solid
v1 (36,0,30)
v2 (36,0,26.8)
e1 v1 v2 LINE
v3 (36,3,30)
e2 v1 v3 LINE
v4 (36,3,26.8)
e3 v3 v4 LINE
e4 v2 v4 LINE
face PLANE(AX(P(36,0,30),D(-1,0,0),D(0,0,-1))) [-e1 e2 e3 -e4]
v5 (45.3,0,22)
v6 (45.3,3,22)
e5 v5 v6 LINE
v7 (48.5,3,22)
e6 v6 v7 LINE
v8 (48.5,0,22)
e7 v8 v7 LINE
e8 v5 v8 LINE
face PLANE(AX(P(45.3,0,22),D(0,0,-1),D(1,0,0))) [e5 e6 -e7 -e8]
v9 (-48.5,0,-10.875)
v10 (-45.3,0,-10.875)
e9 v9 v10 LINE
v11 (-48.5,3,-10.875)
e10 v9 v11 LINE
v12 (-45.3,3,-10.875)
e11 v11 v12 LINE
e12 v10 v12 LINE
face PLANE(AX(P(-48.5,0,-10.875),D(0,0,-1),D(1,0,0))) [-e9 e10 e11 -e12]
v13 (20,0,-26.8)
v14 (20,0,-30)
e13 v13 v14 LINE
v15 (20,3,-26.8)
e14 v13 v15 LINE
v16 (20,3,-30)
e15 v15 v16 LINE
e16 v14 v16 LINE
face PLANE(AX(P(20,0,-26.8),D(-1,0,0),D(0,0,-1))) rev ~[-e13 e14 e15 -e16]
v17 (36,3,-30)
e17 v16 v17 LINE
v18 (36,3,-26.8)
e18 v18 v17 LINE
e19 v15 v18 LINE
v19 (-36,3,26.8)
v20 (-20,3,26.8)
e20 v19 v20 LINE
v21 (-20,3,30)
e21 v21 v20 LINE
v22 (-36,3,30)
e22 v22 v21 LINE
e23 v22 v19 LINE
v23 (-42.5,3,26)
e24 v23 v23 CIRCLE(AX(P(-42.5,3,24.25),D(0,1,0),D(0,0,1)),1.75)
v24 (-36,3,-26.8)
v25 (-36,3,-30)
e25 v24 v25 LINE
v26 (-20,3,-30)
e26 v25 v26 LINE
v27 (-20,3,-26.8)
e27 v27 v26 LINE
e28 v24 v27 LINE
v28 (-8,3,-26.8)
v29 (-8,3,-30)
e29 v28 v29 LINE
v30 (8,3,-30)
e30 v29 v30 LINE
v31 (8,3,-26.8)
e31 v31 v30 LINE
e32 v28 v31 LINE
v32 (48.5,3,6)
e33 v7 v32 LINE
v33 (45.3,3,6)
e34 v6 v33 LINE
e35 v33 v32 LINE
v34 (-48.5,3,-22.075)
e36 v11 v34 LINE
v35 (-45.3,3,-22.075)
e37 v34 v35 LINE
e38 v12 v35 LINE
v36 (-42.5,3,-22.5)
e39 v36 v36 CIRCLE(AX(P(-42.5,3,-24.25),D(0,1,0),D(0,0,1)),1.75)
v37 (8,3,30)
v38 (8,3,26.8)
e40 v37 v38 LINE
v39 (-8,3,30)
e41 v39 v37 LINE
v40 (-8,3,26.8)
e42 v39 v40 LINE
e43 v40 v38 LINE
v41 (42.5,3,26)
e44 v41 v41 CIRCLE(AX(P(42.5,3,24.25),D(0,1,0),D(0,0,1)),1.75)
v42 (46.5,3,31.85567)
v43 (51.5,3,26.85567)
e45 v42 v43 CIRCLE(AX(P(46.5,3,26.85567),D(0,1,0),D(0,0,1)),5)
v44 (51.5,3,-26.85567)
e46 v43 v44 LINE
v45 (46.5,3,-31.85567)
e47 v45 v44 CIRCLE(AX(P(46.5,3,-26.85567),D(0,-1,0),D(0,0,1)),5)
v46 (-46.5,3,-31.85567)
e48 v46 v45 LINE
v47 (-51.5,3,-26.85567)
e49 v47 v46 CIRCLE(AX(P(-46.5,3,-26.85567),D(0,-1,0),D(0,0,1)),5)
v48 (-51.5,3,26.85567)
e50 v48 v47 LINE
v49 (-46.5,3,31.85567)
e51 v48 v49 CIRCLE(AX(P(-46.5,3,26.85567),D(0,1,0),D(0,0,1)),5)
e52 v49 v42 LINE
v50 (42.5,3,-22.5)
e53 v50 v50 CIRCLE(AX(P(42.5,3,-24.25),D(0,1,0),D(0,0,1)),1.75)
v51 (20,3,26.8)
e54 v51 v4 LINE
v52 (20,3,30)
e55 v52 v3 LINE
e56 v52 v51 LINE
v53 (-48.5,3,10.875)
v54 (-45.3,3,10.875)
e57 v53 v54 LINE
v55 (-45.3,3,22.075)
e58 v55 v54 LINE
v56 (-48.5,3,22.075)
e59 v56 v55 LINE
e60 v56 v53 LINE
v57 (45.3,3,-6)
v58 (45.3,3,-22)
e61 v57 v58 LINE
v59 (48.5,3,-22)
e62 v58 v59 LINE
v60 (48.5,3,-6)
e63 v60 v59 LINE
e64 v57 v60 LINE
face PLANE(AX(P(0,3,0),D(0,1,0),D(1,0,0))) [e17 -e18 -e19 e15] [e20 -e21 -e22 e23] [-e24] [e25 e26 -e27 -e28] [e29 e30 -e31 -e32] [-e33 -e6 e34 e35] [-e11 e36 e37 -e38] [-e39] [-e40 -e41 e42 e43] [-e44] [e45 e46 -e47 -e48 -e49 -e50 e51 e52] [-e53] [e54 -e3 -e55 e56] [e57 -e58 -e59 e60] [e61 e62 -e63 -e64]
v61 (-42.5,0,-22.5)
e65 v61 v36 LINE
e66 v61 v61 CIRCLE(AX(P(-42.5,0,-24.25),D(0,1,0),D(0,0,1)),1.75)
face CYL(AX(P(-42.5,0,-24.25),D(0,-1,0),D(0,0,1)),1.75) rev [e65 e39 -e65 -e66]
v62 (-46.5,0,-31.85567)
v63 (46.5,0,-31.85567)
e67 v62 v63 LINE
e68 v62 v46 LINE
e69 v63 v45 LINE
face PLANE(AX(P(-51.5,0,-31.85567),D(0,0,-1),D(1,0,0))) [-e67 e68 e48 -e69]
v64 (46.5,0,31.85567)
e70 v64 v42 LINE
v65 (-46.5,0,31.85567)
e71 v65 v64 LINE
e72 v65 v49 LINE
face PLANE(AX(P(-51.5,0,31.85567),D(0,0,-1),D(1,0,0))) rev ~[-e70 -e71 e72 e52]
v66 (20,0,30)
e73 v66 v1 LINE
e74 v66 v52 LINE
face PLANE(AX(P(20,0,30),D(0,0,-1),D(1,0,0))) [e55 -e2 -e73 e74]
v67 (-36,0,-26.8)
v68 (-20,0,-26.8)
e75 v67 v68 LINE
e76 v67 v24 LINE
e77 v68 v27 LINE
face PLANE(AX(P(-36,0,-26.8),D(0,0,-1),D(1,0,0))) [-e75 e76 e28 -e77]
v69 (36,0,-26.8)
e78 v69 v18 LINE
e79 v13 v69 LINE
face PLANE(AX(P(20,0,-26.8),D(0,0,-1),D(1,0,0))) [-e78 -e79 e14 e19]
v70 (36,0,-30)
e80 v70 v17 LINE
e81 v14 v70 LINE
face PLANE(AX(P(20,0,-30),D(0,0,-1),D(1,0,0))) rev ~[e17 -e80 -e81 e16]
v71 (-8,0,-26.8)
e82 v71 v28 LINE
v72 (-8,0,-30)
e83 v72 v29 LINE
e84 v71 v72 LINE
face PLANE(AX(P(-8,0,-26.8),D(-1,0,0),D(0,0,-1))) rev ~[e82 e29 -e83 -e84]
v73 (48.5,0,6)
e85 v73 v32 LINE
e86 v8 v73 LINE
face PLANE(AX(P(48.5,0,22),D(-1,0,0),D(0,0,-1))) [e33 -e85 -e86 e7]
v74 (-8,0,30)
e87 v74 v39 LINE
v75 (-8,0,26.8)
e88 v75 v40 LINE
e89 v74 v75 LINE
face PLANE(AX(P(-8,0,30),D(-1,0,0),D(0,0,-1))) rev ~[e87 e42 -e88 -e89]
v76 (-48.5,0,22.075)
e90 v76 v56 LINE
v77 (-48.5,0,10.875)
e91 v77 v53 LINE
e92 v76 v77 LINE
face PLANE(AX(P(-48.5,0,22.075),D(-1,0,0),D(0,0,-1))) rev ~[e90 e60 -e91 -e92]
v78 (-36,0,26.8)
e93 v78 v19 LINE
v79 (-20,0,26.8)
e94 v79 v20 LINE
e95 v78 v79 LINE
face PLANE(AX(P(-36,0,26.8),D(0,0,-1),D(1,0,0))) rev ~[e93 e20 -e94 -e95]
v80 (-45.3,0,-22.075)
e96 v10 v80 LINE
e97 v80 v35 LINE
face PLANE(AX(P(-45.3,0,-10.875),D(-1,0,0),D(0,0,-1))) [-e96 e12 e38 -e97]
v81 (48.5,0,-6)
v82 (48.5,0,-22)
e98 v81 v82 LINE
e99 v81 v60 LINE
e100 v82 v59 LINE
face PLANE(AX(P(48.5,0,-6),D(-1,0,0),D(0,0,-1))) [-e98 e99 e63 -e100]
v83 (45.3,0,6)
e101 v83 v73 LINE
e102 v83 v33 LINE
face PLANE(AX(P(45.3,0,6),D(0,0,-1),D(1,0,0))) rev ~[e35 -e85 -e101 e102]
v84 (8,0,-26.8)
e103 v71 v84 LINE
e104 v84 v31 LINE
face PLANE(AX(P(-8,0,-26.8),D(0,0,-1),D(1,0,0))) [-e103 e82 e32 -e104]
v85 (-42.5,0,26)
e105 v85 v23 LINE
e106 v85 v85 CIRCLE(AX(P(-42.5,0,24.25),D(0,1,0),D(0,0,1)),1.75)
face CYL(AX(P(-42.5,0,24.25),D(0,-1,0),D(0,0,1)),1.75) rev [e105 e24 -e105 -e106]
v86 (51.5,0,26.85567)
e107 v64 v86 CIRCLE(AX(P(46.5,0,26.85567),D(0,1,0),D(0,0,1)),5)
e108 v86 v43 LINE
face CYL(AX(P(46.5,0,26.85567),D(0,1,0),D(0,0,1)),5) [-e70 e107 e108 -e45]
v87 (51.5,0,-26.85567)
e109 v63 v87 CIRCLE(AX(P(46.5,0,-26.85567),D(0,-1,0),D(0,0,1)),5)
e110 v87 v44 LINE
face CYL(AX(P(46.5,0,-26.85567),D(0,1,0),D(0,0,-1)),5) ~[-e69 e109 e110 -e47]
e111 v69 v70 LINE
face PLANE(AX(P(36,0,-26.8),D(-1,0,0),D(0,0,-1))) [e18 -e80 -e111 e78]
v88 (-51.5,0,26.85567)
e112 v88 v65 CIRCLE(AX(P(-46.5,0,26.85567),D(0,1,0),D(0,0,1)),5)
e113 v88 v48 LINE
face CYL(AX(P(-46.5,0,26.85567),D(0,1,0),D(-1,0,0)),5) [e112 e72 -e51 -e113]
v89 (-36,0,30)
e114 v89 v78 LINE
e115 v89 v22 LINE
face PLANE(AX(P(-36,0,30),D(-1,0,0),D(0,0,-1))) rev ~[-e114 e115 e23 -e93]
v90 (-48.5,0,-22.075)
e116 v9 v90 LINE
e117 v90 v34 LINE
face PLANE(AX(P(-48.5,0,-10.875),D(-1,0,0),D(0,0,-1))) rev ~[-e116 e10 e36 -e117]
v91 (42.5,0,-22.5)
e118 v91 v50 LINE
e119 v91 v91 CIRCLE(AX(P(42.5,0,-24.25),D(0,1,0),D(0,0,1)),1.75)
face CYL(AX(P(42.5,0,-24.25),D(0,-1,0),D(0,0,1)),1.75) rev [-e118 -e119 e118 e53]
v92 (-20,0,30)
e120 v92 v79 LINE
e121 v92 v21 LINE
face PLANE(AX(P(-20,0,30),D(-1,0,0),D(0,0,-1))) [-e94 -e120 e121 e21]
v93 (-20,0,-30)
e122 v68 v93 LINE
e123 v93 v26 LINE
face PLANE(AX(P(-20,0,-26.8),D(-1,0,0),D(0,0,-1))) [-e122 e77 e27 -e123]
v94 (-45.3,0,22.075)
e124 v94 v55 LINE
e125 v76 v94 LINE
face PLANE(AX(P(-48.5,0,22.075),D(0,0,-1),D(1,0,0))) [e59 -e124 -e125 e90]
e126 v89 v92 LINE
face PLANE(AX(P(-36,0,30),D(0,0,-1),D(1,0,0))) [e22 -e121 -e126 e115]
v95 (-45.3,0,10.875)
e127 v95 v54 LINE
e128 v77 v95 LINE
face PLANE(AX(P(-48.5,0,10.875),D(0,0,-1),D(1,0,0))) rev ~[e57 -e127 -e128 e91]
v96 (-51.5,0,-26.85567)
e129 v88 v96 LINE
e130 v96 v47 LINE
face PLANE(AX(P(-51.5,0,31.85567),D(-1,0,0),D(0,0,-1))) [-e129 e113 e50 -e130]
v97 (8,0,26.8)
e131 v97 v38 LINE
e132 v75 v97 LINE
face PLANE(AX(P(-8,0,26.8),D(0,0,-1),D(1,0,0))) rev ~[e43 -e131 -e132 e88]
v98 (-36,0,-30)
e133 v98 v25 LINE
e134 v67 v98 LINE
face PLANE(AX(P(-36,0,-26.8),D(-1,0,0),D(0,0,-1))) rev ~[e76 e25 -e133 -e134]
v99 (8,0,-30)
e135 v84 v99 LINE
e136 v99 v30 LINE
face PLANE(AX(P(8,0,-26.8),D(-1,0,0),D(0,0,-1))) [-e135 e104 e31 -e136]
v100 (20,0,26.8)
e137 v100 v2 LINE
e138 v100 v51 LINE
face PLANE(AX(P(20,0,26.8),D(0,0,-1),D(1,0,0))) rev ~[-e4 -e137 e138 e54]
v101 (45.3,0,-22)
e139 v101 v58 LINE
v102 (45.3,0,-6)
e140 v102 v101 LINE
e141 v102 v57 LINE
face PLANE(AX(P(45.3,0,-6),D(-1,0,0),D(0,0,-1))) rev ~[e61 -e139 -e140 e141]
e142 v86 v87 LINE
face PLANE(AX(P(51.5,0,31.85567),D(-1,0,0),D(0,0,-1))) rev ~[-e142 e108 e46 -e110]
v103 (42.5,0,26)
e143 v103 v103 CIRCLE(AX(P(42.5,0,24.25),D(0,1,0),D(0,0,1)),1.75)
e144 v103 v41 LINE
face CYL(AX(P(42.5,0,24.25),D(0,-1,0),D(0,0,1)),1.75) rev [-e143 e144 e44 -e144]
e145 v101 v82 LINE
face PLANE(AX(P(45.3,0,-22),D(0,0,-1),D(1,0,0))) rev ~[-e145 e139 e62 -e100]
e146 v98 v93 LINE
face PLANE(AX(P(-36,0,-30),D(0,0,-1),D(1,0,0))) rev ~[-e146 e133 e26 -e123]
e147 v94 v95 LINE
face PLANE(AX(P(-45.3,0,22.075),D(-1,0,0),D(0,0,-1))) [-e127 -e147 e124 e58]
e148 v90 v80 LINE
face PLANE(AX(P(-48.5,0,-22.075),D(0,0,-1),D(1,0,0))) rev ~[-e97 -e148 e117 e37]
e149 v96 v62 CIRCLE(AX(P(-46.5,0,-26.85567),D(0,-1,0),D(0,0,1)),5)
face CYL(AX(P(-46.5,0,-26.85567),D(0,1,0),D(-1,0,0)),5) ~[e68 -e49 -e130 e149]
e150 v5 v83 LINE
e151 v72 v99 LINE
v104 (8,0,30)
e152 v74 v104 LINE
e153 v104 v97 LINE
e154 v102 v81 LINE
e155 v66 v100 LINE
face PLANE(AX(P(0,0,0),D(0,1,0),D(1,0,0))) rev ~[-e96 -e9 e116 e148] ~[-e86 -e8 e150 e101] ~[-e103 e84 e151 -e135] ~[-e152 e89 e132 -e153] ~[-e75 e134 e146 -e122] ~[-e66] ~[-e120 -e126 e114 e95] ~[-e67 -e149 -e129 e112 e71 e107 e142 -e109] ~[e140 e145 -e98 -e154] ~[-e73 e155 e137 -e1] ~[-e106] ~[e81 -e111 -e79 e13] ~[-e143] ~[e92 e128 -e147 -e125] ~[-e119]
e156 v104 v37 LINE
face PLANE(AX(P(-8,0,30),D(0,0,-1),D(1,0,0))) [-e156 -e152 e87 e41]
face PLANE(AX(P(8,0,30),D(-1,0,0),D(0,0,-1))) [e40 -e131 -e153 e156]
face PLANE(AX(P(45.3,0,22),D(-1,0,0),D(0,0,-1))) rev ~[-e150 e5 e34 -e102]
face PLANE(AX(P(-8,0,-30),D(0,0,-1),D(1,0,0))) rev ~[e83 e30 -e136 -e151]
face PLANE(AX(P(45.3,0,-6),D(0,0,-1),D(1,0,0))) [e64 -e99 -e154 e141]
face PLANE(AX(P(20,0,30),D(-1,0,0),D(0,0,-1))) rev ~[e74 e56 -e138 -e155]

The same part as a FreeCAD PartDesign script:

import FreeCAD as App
import Part
import Sketcher
Q = App.Units.Quantity


def edges_at(feature, points):
    """Names of the edges that pass closest to the given points."""
    edges = feature.Shape.Edges
    near = lambda p: min(range(len(edges)), key=lambda i: edges[i].distToShape(Part.Vertex(*p))[0])
    return sorted({f"Edge{near(p) + 1}" for p in points})


def add_polygon(sketch, points):
    """Adds a closed chain of lines whose ends are joined by coincident constraints."""
    first, n = sketch.GeometryCount, len(points)
    for a, b in zip(points, points[1:] + points[:1]):
        sketch.addGeometry(Part.LineSegment(App.Vector(*a, 0), App.Vector(*b, 0)), False)
    for i in range(n):
        sketch.addConstraint(Sketcher.Constraint("Coincident", first + i, 2, first + (i + 1) % n, 1))

doc = App.newDocument("Part")
body = doc.addObject("PartDesign::Body", "Body")

# Sketch on XZ plane
sketch1 = body.newObject("Sketcher::SketchObject", "Sketch")
sketch1.AttachmentSupport = (doc.getObject("XZ_Plane"), [""])
sketch1.MapMode = "FlatFace"
add_polygon(sketch1, [(-51.5, -31.9), (-51.5, 31.9), (51.5, 31.9), (51.5, -31.9)])  # lines 0-3
sketch1.addGeometry(Part.Circle(App.Vector(-42.5, 24.2, 0), App.Vector(0, 0, 1), 1.8), False)  # 4
add_polygon(sketch1, [(-20, 30), (-36, 30), (-36, 26.8), (-20, 26.8)])  # lines 5-8
add_polygon(sketch1, [(-45.3, 22.1), (-48.5, 22.1), (-48.5, 10.9), (-45.3, 10.9)])  # lines 9-12
add_polygon(sketch1, [(8, 30), (-8, 30), (-8, 26.8), (8, 26.8)])  # lines 13-16
add_polygon(sketch1, [(36, 30), (20, 30), (20, 26.8), (36, 26.8)])  # lines 17-20
sketch1.addGeometry(Part.Circle(App.Vector(42.5, 24.2, 0), App.Vector(0, 0, 1), 1.8), False)  # 21
add_polygon(sketch1, [(48.5, 22), (45.3, 22), (45.3, 6), (48.5, 6)])  # lines 22-25
add_polygon(sketch1, [(-45.3, -10.9), (-48.5, -10.9), (-48.5, -22.1), (-45.3, -22.1)])  # lines 26-29
sketch1.addGeometry(Part.Circle(App.Vector(-42.5, -24.2, 0), App.Vector(0, 0, 1), 1.8), False)  # 30
add_polygon(sketch1, [(-20, -26.8), (-36, -26.8), (-36, -30), (-20, -30)])  # lines 31-34
add_polygon(sketch1, [(48.5, -6), (45.3, -6), (45.3, -22), (48.5, -22)])  # lines 35-38
add_polygon(sketch1, [(8, -26.8), (-8, -26.8), (-8, -30), (8, -30)])  # lines 39-42
add_polygon(sketch1, [(36, -26.8), (20, -26.8), (20, -30), (36, -30)])  # lines 43-46
sketch1.addGeometry(Part.Circle(App.Vector(42.5, -24.2, 0), App.Vector(0, 0, 1), 1.8), False)  # 47
sketch1.addConstraint([
    Sketcher.Constraint("Vertical", 0),
    Sketcher.Constraint("Horizontal", 1),
    Sketcher.Constraint("Vertical", 2),
    Sketcher.Constraint("Horizontal", 3),
    Sketcher.Constraint("Horizontal", 5),
    Sketcher.Constraint("Vertical", 6),
    Sketcher.Constraint("Horizontal", 7),
    Sketcher.Constraint("Vertical", 8),
    Sketcher.Constraint("Horizontal", 9),
    Sketcher.Constraint("Vertical", 10),
    Sketcher.Constraint("Horizontal", 11),
    Sketcher.Constraint("Vertical", 12),
    Sketcher.Constraint("Horizontal", 13),
    Sketcher.Constraint("Vertical", 14),
    Sketcher.Constraint("Horizontal", 15),
    Sketcher.Constraint("Vertical", 16),
    Sketcher.Constraint("Horizontal", 17),
    Sketcher.Constraint("Vertical", 18),
    Sketcher.Constraint("Horizontal", 19),
    Sketcher.Constraint("Vertical", 20),
    Sketcher.Constraint("Horizontal", 22),
    Sketcher.Constraint("Vertical", 23),
    Sketcher.Constraint("Horizontal", 24),
    Sketcher.Constraint("Vertical", 25),
    Sketcher.Constraint("Horizontal", 26),
    Sketcher.Constraint("Vertical", 27),
    Sketcher.Constraint("Horizontal", 28),
    Sketcher.Constraint("Vertical", 29),
    Sketcher.Constraint("Horizontal", 31),
    Sketcher.Constraint("Vertical", 32),
    Sketcher.Constraint("Horizontal", 33),
    Sketcher.Constraint("Vertical", 34),
    Sketcher.Constraint("Horizontal", 35),
    Sketcher.Constraint("Vertical", 36),
    Sketcher.Constraint("Horizontal", 37),
    Sketcher.Constraint("Vertical", 38),
    Sketcher.Constraint("Horizontal", 39),
    Sketcher.Constraint("Vertical", 40),
    Sketcher.Constraint("Horizontal", 41),
    Sketcher.Constraint("Vertical", 42),
    Sketcher.Constraint("Horizontal", 43),
    Sketcher.Constraint("Vertical", 44),
    Sketcher.Constraint("Horizontal", 45),
    Sketcher.Constraint("Vertical", 46),
    Sketcher.Constraint("Equal", 4, 21),
    Sketcher.Constraint("Equal", 21, 30),
    Sketcher.Constraint("Equal", 30, 47),
    Sketcher.Constraint("Symmetric", 21, 3, 30, 3, -1, 1),
    Sketcher.Constraint("Symmetric", 4, 3, 47, 3, -1, 1),
    Sketcher.Constraint("Symmetric", 0, 2, 2, 2, -1, 1),
    Sketcher.Constraint("Symmetric", 19, 2, 31, 2, -1, 1),
    Sketcher.Constraint("Symmetric", 17, 2, 33, 2, -1, 1),
    Sketcher.Constraint("Symmetric", 15, 2, 39, 2, -1, 1),
    Sketcher.Constraint("Symmetric", 13, 2, 41, 2, -1, 1),
    Sketcher.Constraint("Symmetric", 7, 2, 43, 2, -1, 1),
    Sketcher.Constraint("Symmetric", 5, 2, 45, 2, -1, 1),
    Sketcher.Constraint("Symmetric", 4, 3, 21, 3, -2),
    Sketcher.Constraint("Symmetric", 8, 2, 17, 2, -2),
    Sketcher.Constraint("Symmetric", 6, 2, 19, 2, -2),
    Sketcher.Constraint("Symmetric", 10, 2, 26, 2, -1),
    Sketcher.Constraint("Symmetric", 12, 2, 28, 2, -1),
    Sketcher.Constraint("Symmetric", 23, 2, 35, 2, -1),
    Sketcher.Constraint("Symmetric", 25, 2, 37, 2, -1),
    Sketcher.Constraint("Horizontal", 8, 2, 13, 2),
    Sketcher.Constraint("Horizontal", 7, 2, 14, 2),
    Sketcher.Constraint("Vertical", 14, 2, 39, 2),
    Sketcher.Constraint("Equal", 7, 13),
    Sketcher.Constraint("Equal", 11, 22),
    Sketcher.Constraint("Equal", 37, 6),
    Sketcher.Constraint("Equal", 45, 23),
    Sketcher.Constraint("Diameter", 4, Q("3.5 mm")),
    Sketcher.Constraint("DistanceX", 1, 1, 1, 2, Q("103 mm")),
    Sketcher.Constraint("DistanceX", 5, 2, 5, 1, Q("16 mm")),
    Sketcher.Constraint("DistanceX", 9, 2, 9, 1, Q("3.2 mm")),
    Sketcher.Constraint("DistanceY", 10, 2, 10, 1, Q("11.2 mm")),
    Sketcher.Constraint("DistanceX", 5, 2, -1, 1, Q("36 mm")),
    Sketcher.Constraint("DistanceY", -1, 1, 5, 2, Q("30 mm")),
    Sketcher.Constraint("DistanceY", -1, 1, 22, 2, Q("22 mm")),
    Sketcher.Constraint("DistanceX", 4, 3, 21, 3, Q("85 mm")),
    Sketcher.Constraint("DistanceX", 9, 2, 4, 3, Q("6 mm")),
    Sketcher.Constraint("DistanceX", 21, 3, 24, 2, Q("6 mm")),
    Sketcher.Constraint("DistanceY", 30, 3, 4, 3, Q("48.5 mm")),
    Sketcher.Constraint("DistanceY", 26, 2, 10, 2, Q("21.75 mm")),
    Sketcher.Constraint("DistanceY", 0, 1, 0, 2, Q("63.71134 mm")),
])
pad1 = body.newObject("PartDesign::Pad", "Pad")
pad1.Profile = sketch1
pad1.Length = 3
pad1.Reversed = True
doc.recompute()

fillet = body.newObject("PartDesign::Fillet", "Fillet")
fillet.Base = (pad1, edges_at(pad1, [
    (51.5, 1.5, 31.856),
    (-51.5, 1.5, 31.856),
    (-51.5, 1.5, -31.856),
    (51.5, 1.5, -31.856),
]))
fillet.Radius = 5

doc.recompute()
